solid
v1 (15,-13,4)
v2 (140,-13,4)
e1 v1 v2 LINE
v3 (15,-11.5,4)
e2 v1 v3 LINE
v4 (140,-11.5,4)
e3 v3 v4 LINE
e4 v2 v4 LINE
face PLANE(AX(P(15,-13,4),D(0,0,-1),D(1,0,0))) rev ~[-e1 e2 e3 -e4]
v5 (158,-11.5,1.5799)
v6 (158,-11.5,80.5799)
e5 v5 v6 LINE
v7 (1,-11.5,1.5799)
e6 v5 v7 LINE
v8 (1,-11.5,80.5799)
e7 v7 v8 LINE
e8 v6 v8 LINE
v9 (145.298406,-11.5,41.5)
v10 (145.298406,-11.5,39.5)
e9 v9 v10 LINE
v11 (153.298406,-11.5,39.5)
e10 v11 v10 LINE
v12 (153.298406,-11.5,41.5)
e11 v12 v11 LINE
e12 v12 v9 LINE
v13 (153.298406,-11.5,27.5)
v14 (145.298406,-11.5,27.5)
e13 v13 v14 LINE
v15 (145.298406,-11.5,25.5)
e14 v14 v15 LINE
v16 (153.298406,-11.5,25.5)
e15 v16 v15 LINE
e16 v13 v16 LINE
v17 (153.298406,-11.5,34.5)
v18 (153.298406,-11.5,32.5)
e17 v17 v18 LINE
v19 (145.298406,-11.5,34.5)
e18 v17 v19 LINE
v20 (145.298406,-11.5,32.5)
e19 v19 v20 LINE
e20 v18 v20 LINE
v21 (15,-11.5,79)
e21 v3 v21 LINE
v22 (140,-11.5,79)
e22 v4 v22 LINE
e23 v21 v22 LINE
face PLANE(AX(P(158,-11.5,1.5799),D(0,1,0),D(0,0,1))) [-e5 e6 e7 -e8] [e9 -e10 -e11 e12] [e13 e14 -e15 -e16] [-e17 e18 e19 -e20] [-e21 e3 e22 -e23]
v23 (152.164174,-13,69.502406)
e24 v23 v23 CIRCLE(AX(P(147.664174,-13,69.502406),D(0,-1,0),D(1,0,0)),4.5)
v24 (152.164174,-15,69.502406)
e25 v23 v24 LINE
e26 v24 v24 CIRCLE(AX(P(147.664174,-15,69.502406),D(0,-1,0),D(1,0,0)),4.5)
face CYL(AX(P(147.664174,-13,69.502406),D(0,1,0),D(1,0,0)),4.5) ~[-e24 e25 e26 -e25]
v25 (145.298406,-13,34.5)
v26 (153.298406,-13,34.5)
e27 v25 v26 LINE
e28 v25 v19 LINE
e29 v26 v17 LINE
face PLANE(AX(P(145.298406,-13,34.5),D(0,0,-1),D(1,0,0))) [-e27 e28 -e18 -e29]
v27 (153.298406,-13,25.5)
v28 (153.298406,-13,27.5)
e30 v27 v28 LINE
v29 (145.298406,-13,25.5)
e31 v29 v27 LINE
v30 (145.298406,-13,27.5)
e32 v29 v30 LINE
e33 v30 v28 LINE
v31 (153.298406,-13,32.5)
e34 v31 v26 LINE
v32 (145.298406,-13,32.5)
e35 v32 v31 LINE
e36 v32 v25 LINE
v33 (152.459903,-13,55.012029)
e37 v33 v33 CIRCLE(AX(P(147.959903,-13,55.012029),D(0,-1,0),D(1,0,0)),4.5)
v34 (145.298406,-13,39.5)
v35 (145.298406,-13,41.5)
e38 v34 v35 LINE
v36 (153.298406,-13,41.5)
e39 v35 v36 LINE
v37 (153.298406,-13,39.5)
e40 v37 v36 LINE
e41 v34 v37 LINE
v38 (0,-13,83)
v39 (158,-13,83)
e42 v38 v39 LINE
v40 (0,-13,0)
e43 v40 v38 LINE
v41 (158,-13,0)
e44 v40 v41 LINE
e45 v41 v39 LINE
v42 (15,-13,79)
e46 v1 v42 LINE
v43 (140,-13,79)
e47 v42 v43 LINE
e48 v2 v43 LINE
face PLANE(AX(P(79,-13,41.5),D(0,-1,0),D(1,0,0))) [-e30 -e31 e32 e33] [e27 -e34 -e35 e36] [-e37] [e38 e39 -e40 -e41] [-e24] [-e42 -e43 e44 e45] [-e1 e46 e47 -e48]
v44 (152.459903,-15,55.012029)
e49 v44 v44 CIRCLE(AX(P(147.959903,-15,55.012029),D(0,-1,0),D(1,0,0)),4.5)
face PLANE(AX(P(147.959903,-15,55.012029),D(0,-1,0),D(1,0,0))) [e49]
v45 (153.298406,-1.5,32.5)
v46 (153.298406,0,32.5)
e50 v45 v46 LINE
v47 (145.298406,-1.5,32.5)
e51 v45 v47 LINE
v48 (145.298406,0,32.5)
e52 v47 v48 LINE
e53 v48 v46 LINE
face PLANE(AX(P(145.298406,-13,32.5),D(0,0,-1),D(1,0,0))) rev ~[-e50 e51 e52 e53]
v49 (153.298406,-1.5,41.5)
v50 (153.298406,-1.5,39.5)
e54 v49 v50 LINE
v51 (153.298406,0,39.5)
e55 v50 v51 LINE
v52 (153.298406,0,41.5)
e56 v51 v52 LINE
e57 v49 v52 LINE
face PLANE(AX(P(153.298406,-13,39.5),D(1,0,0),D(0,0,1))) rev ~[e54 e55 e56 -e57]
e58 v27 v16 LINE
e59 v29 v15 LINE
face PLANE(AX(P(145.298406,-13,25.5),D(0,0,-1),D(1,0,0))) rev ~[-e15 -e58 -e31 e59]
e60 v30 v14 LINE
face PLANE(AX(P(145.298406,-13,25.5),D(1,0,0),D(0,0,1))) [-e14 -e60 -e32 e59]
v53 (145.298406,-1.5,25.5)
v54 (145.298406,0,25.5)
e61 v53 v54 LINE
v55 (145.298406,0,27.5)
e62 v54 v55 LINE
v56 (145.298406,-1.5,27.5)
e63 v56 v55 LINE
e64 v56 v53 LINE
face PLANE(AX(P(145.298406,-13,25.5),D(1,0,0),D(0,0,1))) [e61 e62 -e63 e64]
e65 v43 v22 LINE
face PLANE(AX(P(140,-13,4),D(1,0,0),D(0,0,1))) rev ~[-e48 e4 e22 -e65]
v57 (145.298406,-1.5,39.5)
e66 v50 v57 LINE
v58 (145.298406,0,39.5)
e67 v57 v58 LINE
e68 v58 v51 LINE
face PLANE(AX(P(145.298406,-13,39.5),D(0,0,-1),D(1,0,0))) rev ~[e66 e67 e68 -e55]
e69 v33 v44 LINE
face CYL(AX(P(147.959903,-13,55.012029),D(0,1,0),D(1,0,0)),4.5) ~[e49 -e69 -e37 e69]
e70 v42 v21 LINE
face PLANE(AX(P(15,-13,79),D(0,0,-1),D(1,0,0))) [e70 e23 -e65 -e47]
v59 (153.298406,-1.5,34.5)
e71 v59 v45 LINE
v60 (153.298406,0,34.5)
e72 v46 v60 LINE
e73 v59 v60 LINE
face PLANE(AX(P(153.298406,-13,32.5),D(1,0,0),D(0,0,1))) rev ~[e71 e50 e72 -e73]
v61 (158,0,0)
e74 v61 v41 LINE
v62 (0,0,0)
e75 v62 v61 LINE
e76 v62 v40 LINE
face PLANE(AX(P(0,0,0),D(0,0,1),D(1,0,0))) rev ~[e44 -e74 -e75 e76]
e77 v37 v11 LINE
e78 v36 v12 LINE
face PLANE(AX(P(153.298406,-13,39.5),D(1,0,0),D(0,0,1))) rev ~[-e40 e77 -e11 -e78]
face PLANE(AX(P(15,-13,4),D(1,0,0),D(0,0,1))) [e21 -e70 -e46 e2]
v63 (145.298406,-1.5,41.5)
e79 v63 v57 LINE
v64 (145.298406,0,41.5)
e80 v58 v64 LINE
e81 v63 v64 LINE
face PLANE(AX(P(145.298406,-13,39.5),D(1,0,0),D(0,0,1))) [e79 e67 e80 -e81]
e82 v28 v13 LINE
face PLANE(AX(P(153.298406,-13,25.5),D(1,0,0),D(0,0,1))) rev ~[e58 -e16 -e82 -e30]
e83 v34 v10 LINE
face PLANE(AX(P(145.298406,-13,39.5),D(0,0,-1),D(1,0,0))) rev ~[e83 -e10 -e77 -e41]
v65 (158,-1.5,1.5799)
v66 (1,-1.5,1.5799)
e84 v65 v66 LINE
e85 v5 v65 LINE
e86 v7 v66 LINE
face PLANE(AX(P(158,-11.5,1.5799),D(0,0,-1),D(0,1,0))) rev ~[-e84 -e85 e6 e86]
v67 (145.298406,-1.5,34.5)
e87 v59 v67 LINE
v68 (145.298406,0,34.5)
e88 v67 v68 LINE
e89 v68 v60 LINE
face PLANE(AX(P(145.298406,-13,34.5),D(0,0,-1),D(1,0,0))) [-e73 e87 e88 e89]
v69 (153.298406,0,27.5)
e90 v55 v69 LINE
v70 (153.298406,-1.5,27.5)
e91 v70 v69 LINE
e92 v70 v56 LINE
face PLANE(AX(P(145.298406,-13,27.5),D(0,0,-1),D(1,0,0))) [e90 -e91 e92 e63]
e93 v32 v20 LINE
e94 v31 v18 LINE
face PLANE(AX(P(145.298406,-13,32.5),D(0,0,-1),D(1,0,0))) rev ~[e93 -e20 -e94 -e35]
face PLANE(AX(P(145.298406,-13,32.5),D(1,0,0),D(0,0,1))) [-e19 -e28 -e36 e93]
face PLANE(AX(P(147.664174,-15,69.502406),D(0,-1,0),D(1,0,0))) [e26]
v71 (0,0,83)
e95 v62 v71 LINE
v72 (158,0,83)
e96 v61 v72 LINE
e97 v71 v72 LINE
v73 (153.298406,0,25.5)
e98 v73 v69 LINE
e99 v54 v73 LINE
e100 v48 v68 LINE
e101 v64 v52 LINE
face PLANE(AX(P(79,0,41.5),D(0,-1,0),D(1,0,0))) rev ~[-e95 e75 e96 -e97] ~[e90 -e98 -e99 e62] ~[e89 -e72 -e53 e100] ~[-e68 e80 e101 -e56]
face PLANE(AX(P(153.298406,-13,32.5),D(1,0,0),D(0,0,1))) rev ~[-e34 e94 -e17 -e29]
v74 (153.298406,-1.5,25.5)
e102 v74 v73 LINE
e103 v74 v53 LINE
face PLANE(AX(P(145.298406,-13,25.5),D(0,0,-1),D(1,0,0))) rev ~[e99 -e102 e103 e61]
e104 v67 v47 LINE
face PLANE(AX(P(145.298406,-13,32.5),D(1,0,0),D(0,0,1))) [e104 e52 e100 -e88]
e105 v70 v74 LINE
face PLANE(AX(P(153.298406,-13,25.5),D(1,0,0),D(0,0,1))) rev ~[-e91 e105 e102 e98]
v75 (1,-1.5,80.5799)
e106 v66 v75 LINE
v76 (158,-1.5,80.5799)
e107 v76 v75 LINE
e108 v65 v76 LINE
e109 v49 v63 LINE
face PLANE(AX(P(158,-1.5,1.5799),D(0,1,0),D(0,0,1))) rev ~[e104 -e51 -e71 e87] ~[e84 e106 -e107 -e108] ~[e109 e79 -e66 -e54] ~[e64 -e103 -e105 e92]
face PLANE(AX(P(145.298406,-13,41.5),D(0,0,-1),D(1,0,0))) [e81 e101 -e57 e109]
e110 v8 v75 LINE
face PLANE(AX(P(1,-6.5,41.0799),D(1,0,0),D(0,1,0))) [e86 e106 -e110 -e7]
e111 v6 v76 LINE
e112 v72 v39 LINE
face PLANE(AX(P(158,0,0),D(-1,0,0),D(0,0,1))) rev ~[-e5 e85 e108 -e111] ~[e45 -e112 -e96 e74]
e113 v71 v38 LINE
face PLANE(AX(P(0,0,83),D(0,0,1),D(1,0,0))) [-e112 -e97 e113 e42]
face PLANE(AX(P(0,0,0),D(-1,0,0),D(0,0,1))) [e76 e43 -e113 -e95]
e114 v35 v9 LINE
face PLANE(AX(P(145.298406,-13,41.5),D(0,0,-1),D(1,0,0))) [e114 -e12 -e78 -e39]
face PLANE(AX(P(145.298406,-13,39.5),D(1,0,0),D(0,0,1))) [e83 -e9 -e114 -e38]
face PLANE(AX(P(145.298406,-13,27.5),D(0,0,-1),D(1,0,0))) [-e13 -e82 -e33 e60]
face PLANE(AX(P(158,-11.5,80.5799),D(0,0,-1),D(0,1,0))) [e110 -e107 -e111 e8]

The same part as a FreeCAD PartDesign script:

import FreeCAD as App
import Part
import Sketcher

V = App.Vector
Q = App.Units.Quantity

doc = App.newDocument("Part")
body = doc.addObject("PartDesign::Body", "Body")

# Sketch on XZ plane
sketch1 = body.newObject("Sketcher::SketchObject", "Sketch")
sketch1.AttachmentSupport = (doc.getObject("XZ_Plane"), [""])
sketch1.MapMode = "FlatFace"
sketch1.addGeometry(Part.LineSegment(V(0, 83, 0), V(0, 0, 0)), False)
sketch1.addGeometry(Part.LineSegment(V(0, 0, 0), V(158, 0, 0)), False)
sketch1.addGeometry(Part.LineSegment(V(158, 0, 0), V(158, 83, 0)), False)
sketch1.addGeometry(Part.LineSegment(V(158, 83, 0), V(0, 83, 0)), False)
sketch1.addConstraint(Sketcher.Constraint("Coincident", 0, 2, 1, 1))
sketch1.addConstraint(Sketcher.Constraint("Coincident", 1, 2, 2, 1))
sketch1.addConstraint(Sketcher.Constraint("Coincident", 2, 2, 3, 1))
sketch1.addConstraint(Sketcher.Constraint("Coincident", 3, 2, 0, 1))
sketch1.addConstraint(Sketcher.Constraint("Vertical", 0))
sketch1.addConstraint(Sketcher.Constraint("Horizontal", 1))
sketch1.addConstraint(Sketcher.Constraint("Vertical", 2))
sketch1.addConstraint(Sketcher.Constraint("Horizontal", 3))
sketch1.addConstraint(Sketcher.Constraint("Coincident", 0, 2, -1, 1))
sketch1.addConstraint(Sketcher.Constraint("DistanceX", 1, 1, 1, 2, Q("158 mm")))
sketch1.addConstraint(Sketcher.Constraint("DistanceY", 0, 2, 0, 1, Q("83 mm")))
pad1 = body.newObject("PartDesign::Pad", "Pad")
pad1.Profile = sketch1
pad1.Length = 13

# Sketch on XZ plane
sketch2 = body.newObject("Sketcher::SketchObject", "Sketch001")
sketch2.AttachmentSupport = (doc.getObject("XZ_Plane"), [""])
sketch2.MapMode = "FlatFace"
sketch2.AttachmentOffset = App.Placement(V(0, 0, 13), App.Rotation())
sketch2.addGeometry(Part.LineSegment(V(15, 79, 0), V(15, 4, 0)), False)
sketch2.addGeometry(Part.LineSegment(V(15, 4, 0), V(140, 4, 0)), False)
sketch2.addGeometry(Part.LineSegment(V(140, 4, 0), V(140, 79, 0)), False)
sketch2.addGeometry(Part.LineSegment(V(140, 79, 0), V(15, 79, 0)), False)
sketch2.addConstraint(Sketcher.Constraint("Coincident", 0, 2, 1, 1))
sketch2.addConstraint(Sketcher.Constraint("Coincident", 1, 2, 2, 1))
sketch2.addConstraint(Sketcher.Constraint("Coincident", 2, 2, 3, 1))
sketch2.addConstraint(Sketcher.Constraint("Coincident", 3, 2, 0, 1))
sketch2.addConstraint(Sketcher.Constraint("Vertical", 0))
sketch2.addConstraint(Sketcher.Constraint("Horizontal", 1))
sketch2.addConstraint(Sketcher.Constraint("Vertical", 2))
sketch2.addConstraint(Sketcher.Constraint("Horizontal", 3))
sketch2.addConstraint(Sketcher.Constraint("DistanceX", 1, 1, 1, 2, Q("125 mm")))
sketch2.addConstraint(Sketcher.Constraint("DistanceY", 0, 2, 0, 1, Q("75 mm")))
sketch2.addConstraint(Sketcher.Constraint("DistanceX", -1, 1, 0, 2, Q("15 mm")))
sketch2.addConstraint(Sketcher.Constraint("DistanceY", -1, 1, 0, 2, Q("4 mm")))
pocket1 = body.newObject("PartDesign::Pocket", "Pocket")
pocket1.Profile = sketch2
pocket1.Length = 10

# Sketch on YZ plane
sketch3 = body.newObject("Sketcher::SketchObject", "Sketch002")
sketch3.AttachmentSupport = (doc.getObject("YZ_Plane"), [""])
sketch3.MapMode = "FlatFace"
sketch3.AttachmentOffset = App.Placement(V(0, 0, 158), App.Rotation())
sketch3.addGeometry(Part.LineSegment(V(-12, 81, 0), V(-12, 2, 0)), False)
sketch3.addGeometry(Part.LineSegment(V(-12, 2, 0), V(-2, 2, 0)), False)
sketch3.addGeometry(Part.LineSegment(V(-2, 2, 0), V(-2, 81, 0)), False)
sketch3.addGeometry(Part.LineSegment(V(-2, 81, 0), V(-12, 81, 0)), False)
sketch3.addConstraint(Sketcher.Constraint("Coincident", 0, 2, 1, 1))
sketch3.addConstraint(Sketcher.Constraint("Coincident", 1, 2, 2, 1))
sketch3.addConstraint(Sketcher.Constraint("Coincident", 2, 2, 3, 1))
sketch3.addConstraint(Sketcher.Constraint("Coincident", 3, 2, 0, 1))
sketch3.addConstraint(Sketcher.Constraint("Vertical", 0))
sketch3.addConstraint(Sketcher.Constraint("Horizontal", 1))
sketch3.addConstraint(Sketcher.Constraint("Vertical", 2))
sketch3.addConstraint(Sketcher.Constraint("Horizontal", 3))
sketch3.addConstraint(Sketcher.Constraint("DistanceX", 1, 1, 1, 2, Q("10 mm")))
sketch3.addConstraint(Sketcher.Constraint("DistanceY", 0, 2, 0, 1, Q("79 mm")))
sketch3.addConstraint(Sketcher.Constraint("DistanceX", 0, 2, -1, 1, Q("11.5 mm")))
sketch3.addConstraint(Sketcher.Constraint("DistanceY", -1, 1, 0, 2, Q("1.5799 mm")))
pocket2 = body.newObject("PartDesign::Pocket", "Pocket001")
pocket2.Profile = sketch3
pocket2.Length = 157

# Sketch on XZ plane
sketch4 = body.newObject("Sketcher::SketchObject", "Sketch003")
sketch4.AttachmentSupport = (doc.getObject("XZ_Plane"), [""])
sketch4.MapMode = "FlatFace"
sketch4.AttachmentOffset = App.Placement(V(0, 0, 13), App.Rotation())
sketch4.addGeometry(Part.Circle(V(147.7, 69.5, 0), V(0, 0, 1), 4.5), False)
sketch4.addConstraint(Sketcher.Constraint("Diameter", 0, Q("9 mm")))
sketch4.addConstraint(Sketcher.Constraint("DistanceX", -1, 1, 0, 3, Q("147.664174 mm")))
sketch4.addConstraint(Sketcher.Constraint("DistanceY", -1, 1, 0, 3, Q("69.502406 mm")))
pad2 = body.newObject("PartDesign::Pad", "Pad001")
pad2.Profile = sketch4
pad2.Length = 2

# Sketch on XZ plane
sketch5 = body.newObject("Sketcher::SketchObject", "Sketch004")
sketch5.AttachmentSupport = (doc.getObject("XZ_Plane"), [""])
sketch5.MapMode = "FlatFace"
sketch5.AttachmentOffset = App.Placement(V(0, 0, 13), App.Rotation())
sketch5.addGeometry(Part.Circle(V(148, 55, 0), V(0, 0, 1), 4.5), False)
sketch5.addConstraint(Sketcher.Constraint("Diameter", 0, Q("9 mm")))
sketch5.addConstraint(Sketcher.Constraint("DistanceY", -1, 1, 0, 3, Q("55.012029 mm")))
sketch5.addConstraint(Sketcher.Constraint("DistanceX", -1, 1, 0, 3, Q("147.959903 mm")))
pad3 = body.newObject("PartDesign::Pad", "Pad002")
pad3.Profile = sketch5
pad3.Length = 2

# Sketch on XZ plane
sketch6 = body.newObject("Sketcher::SketchObject", "Sketch005")
sketch6.AttachmentSupport = (doc.getObject("XZ_Plane"), [""])
sketch6.MapMode = "FlatFace"
sketch6.AttachmentOffset = App.Placement(V(0, 0, 13), App.Rotation())
sketch6.addGeometry(Part.LineSegment(V(145.3, 41.5, 0), V(145.3, 39.5, 0)), False)
sketch6.addGeometry(Part.LineSegment(V(145.3, 39.5, 0), V(153.3, 39.5, 0)), False)
sketch6.addGeometry(Part.LineSegment(V(153.3, 39.5, 0), V(153.3, 41.5, 0)), False)
sketch6.addGeometry(Part.LineSegment(V(153.3, 41.5, 0), V(145.3, 41.5, 0)), False)
sketch6.addGeometry(Part.LineSegment(V(145.3, 34.5, 0), V(145.3, 32.5, 0)), False)
sketch6.addGeometry(Part.LineSegment(V(145.3, 32.5, 0), V(153.3, 32.5, 0)), False)
sketch6.addGeometry(Part.LineSegment(V(153.3, 32.5, 0), V(153.3, 34.5, 0)), False)
sketch6.addGeometry(Part.LineSegment(V(153.3, 34.5, 0), V(145.3, 34.5, 0)), False)
sketch6.addGeometry(Part.LineSegment(V(145.3, 27.5, 0), V(145.3, 25.5, 0)), False)
sketch6.addGeometry(Part.LineSegment(V(145.3, 25.5, 0), V(153.3, 25.5, 0)), False)
sketch6.addGeometry(Part.LineSegment(V(153.3, 25.5, 0), V(153.3, 27.5, 0)), False)
sketch6.addGeometry(Part.LineSegment(V(153.3, 27.5, 0), V(145.3, 27.5, 0)), False)
sketch6.addConstraint(Sketcher.Constraint("Coincident", 0, 2, 1, 1))
sketch6.addConstraint(Sketcher.Constraint("Coincident", 1, 2, 2, 1))
sketch6.addConstraint(Sketcher.Constraint("Coincident", 2, 2, 3, 1))
sketch6.addConstraint(Sketcher.Constraint("Coincident", 3, 2, 0, 1))
sketch6.addConstraint(Sketcher.Constraint("Coincident", 4, 2, 5, 1))
sketch6.addConstraint(Sketcher.Constraint("Coincident", 5, 2, 6, 1))
sketch6.addConstraint(Sketcher.Constraint("Coincident", 6, 2, 7, 1))
sketch6.addConstraint(Sketcher.Constraint("Coincident", 7, 2, 4, 1))
sketch6.addConstraint(Sketcher.Constraint("Coincident", 8, 2, 9, 1))
sketch6.addConstraint(Sketcher.Constraint("Coincident", 9, 2, 10, 1))
sketch6.addConstraint(Sketcher.Constraint("Coincident", 10, 2, 11, 1))
sketch6.addConstraint(Sketcher.Constraint("Coincident", 11, 2, 8, 1))
sketch6.addConstraint(Sketcher.Constraint("Vertical", 0))
sketch6.addConstraint(Sketcher.Constraint("Horizontal", 1))
sketch6.addConstraint(Sketcher.Constraint("Vertical", 2))
sketch6.addConstraint(Sketcher.Constraint("Horizontal", 3))
sketch6.addConstraint(Sketcher.Constraint("Vertical", 4))
sketch6.addConstraint(Sketcher.Constraint("Horizontal", 5))
sketch6.addConstraint(Sketcher.Constraint("Vertical", 6))
sketch6.addConstraint(Sketcher.Constraint("Horizontal", 7))
sketch6.addConstraint(Sketcher.Constraint("Vertical", 8))
sketch6.addConstraint(Sketcher.Constraint("Horizontal", 9))
sketch6.addConstraint(Sketcher.Constraint("Vertical", 10))
sketch6.addConstraint(Sketcher.Constraint("Horizontal", 11))
sketch6.addConstraint(Sketcher.Constraint("Vertical", 3, 2, 4, 2))
sketch6.addConstraint(Sketcher.Constraint("Vertical", 2, 2, 5, 2))
sketch6.addConstraint(Sketcher.Constraint("Vertical", 7, 2, 8, 2))
sketch6.addConstraint(Sketcher.Constraint("Vertical", 6, 2, 9, 2))
sketch6.addConstraint(Sketcher.Constraint("Equal", 2, 4))
sketch6.addConstraint(Sketcher.Constraint("Equal", 6, 8))
sketch6.addConstraint(Sketcher.Constraint("DistanceX", 1, 1, 1, 2, Q("8 mm")))
sketch6.addConstraint(Sketcher.Constraint("DistanceY", 0, 2, 0, 1, Q("2 mm")))
sketch6.addConstraint(Sketcher.Constraint("DistanceY", 4, 2, 0, 2, Q("7 mm")))
sketch6.addConstraint(Sketcher.Constraint("DistanceY", 8, 2, 4, 2, Q("7 mm")))
sketch6.addConstraint(Sketcher.Constraint("DistanceY", -1, 1, 0, 2, Q("39.5 mm")))
sketch6.addConstraint(Sketcher.Constraint("DistanceX", -1, 1, 0, 2, Q("145.298406 mm")))
pocket3 = body.newObject("PartDesign::Pocket", "Pocket002")
pocket3.Profile = sketch6
pocket3.Length = 25

doc.recompute()
